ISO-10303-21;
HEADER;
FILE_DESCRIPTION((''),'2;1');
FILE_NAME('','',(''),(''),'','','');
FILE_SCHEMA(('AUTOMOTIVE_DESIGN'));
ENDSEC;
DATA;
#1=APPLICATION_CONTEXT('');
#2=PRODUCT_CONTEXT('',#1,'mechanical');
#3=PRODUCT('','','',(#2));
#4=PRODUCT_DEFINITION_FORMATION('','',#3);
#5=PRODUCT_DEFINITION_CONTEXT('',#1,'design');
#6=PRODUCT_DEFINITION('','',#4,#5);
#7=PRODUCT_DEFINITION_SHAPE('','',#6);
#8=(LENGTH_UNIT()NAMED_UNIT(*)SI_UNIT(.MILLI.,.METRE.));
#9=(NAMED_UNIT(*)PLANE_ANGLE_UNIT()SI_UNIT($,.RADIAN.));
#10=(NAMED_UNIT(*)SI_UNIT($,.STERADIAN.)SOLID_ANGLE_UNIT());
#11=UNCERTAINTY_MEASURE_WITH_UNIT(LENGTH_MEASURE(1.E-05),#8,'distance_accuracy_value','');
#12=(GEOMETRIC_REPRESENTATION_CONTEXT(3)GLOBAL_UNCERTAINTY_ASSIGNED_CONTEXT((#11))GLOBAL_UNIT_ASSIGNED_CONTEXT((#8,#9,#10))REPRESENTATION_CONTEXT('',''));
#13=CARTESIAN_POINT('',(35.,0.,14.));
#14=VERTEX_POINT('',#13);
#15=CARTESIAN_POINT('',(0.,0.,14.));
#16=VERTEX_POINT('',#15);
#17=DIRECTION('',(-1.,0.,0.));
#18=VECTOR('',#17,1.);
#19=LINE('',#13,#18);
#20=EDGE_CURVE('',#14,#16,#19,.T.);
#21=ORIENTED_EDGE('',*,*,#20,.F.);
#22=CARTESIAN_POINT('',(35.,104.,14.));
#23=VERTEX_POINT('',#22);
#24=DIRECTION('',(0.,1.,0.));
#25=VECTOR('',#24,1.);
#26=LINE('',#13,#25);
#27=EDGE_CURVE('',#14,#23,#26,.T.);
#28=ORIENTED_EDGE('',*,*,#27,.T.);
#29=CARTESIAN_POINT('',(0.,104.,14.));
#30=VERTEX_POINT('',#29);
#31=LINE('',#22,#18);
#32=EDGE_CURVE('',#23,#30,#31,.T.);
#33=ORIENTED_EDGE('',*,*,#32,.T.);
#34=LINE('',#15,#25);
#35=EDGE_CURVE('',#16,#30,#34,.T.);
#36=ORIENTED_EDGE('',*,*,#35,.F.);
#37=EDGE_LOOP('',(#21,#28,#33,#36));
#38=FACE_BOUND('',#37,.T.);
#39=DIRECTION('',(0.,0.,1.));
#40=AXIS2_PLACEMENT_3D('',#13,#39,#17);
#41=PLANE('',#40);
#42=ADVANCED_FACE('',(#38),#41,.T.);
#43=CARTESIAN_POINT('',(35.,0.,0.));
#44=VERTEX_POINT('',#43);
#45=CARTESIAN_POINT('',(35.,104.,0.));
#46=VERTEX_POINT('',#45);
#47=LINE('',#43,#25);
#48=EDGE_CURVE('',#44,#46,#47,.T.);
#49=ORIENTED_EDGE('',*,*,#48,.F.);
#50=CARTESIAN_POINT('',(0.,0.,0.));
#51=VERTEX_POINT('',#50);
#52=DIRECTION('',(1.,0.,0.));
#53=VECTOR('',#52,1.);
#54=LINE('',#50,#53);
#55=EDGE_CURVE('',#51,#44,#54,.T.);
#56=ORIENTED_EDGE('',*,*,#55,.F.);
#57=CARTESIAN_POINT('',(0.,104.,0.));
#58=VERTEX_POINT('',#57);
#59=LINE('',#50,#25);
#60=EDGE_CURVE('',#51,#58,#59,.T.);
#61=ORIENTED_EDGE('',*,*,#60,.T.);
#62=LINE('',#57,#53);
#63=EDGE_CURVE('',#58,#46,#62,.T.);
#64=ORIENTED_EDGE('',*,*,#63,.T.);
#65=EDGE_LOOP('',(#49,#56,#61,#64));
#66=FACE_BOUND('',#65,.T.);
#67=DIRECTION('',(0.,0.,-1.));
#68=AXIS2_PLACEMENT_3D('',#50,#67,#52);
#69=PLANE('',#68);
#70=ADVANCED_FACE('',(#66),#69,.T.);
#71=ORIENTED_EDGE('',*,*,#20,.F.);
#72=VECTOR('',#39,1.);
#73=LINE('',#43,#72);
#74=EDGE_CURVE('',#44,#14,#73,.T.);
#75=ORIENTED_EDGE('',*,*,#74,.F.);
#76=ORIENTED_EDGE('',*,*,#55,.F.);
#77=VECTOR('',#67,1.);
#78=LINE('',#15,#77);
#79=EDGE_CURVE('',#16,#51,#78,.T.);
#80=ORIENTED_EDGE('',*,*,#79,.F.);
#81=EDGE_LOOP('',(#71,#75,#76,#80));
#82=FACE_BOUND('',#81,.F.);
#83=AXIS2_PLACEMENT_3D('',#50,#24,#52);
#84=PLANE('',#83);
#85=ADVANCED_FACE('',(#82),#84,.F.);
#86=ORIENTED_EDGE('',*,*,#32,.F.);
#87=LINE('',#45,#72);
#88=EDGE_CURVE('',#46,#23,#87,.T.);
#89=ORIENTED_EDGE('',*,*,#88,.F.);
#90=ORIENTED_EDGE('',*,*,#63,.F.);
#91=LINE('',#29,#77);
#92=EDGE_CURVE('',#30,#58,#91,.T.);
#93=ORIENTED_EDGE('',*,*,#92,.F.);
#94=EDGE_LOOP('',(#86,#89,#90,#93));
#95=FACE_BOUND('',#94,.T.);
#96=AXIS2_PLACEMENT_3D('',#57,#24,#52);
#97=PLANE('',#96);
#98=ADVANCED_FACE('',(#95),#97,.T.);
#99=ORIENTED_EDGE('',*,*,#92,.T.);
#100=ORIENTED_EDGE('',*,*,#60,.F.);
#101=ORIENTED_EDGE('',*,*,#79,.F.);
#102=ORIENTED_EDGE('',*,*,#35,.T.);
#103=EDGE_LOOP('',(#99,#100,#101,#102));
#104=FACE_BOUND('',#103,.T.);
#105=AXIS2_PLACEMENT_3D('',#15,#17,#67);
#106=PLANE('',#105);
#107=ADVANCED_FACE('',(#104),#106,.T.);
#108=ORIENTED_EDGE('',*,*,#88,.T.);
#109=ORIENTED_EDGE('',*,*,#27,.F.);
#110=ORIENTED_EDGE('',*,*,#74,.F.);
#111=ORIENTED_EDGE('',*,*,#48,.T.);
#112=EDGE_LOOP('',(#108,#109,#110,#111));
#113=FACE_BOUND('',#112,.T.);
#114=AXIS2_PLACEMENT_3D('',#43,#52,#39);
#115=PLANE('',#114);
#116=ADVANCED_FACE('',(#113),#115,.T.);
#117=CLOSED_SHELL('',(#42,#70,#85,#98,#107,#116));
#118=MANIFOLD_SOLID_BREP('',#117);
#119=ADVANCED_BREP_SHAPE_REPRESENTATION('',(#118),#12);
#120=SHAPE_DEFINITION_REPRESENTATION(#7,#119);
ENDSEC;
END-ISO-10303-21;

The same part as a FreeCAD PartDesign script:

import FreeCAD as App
import Part
import Sketcher
Q = App.Units.Quantity


def add_polygon(sketch, points):
    """Adds a closed chain of lines whose ends are joined by coincident constraints."""
    first, n = sketch.GeometryCount, len(points)
    for a, b in zip(points, points[1:] + points[:1]):
        sketch.addGeometry(Part.LineSegment(App.Vector(*a, 0), App.Vector(*b, 0)), False)
    for i in range(n):
        sketch.addConstraint(Sketcher.Constraint("Coincident", first + i, 2, first + (i + 1) % n, 1))

doc = App.newDocument("Part")
body = doc.addObject("PartDesign::Body", "Body")

# Sketch on XZ plane
sketch1 = body.newObject("Sketcher::SketchObject", "Sketch")
sketch1.AttachmentSupport = (doc.getObject("XZ_Plane"), [""])
sketch1.MapMode = "FlatFace"
add_polygon(sketch1, [(35, 0), (0, 0), (0, 14), (35, 14)])  # lines 0-3
sketch1.addConstraint([
    Sketcher.Constraint("Horizontal", 0),
    Sketcher.Constraint("Vertical", 1),
    Sketcher.Constraint("Horizontal", 2),
    Sketcher.Constraint("Vertical", 3),
    Sketcher.Constraint("Coincident", 0, 2, -1, 1),
    Sketcher.Constraint("DistanceX", 0, 2, 0, 1, Q("35 mm")),
    Sketcher.Constraint("DistanceY", 1, 1, 1, 2, Q("14 mm")),
])
pad1 = body.newObject("PartDesign::Pad", "Pad")
pad1.Profile = sketch1
pad1.Length = 104
pad1.Reversed = True

doc.recompute()
